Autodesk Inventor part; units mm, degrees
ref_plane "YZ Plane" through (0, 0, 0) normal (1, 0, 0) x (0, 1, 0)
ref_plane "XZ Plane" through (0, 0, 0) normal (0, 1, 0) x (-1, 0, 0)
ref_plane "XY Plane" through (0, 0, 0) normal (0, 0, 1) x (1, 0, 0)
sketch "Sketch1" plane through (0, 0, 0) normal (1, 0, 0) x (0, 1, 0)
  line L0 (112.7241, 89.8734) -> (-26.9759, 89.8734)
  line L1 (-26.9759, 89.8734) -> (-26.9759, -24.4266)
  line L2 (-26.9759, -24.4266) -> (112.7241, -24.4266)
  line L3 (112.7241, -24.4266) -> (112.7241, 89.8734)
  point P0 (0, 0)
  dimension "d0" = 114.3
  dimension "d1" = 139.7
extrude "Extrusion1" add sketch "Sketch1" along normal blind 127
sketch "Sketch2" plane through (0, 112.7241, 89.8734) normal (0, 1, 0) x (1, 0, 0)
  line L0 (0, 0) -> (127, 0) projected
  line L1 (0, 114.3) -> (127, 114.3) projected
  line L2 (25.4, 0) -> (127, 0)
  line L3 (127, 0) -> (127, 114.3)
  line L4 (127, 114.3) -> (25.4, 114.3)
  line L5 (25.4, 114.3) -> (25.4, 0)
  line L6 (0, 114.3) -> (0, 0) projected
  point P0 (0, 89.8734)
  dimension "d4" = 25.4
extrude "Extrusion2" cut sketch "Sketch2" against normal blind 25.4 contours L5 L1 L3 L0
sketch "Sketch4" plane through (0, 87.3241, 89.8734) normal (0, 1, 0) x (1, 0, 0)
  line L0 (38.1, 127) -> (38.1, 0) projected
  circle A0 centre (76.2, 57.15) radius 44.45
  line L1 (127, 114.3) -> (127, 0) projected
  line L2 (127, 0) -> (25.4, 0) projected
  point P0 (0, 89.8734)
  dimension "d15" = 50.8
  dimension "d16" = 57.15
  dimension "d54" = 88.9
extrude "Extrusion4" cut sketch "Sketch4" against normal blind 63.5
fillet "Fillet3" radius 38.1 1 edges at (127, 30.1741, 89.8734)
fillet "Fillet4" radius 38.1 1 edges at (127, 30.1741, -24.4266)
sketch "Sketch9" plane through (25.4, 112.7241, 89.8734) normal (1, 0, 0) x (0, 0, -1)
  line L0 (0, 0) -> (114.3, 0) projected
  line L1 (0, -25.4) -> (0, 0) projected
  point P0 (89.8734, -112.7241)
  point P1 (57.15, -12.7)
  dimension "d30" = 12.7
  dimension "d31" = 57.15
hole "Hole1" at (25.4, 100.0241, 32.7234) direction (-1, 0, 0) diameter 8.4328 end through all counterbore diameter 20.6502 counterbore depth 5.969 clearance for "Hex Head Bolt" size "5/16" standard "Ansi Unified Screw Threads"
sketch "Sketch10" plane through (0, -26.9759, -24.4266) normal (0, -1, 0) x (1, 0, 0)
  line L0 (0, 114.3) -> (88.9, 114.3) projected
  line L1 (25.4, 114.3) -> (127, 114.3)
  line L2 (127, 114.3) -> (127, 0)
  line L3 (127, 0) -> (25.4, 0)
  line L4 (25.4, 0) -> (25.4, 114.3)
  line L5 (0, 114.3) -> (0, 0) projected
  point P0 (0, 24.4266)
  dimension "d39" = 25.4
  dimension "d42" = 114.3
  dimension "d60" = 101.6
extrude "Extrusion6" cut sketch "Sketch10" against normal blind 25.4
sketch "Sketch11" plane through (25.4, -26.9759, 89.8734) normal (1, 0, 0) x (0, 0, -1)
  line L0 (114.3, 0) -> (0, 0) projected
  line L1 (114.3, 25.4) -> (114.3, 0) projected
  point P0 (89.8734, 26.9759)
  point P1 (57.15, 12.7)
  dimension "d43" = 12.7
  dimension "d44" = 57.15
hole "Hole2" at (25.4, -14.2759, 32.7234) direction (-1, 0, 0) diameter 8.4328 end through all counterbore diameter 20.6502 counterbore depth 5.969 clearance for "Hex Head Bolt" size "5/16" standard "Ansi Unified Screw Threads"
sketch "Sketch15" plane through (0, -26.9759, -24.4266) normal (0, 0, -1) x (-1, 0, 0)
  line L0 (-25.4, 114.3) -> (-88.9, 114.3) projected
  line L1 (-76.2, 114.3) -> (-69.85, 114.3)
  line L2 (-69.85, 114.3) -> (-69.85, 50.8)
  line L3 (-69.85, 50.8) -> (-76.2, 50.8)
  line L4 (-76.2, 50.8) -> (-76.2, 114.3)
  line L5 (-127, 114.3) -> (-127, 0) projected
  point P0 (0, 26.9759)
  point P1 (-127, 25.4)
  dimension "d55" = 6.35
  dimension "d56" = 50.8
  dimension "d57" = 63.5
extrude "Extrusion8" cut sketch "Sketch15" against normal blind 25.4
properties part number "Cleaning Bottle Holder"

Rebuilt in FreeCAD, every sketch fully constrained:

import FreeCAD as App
import Part
import Sketcher
from FreeCAD import Vector
Q = App.Units.Quantity


def edges_at(feature, points):
    """Names of the edges that pass closest to the given points."""
    edges = feature.Shape.Edges
    near = lambda p: min(range(len(edges)), key=lambda i: edges[i].distToShape(Part.Vertex(*p))[0])
    return sorted({f"Edge{near(p) + 1}" for p in points})


def add_polygon(sketch, points):
    """Adds a closed chain of lines whose ends are joined by coincident constraints."""
    first, n = sketch.GeometryCount, len(points)
    for a, b in zip(points, points[1:] + points[:1]):
        sketch.addGeometry(Part.LineSegment(App.Vector(*a, 0), App.Vector(*b, 0)), False)
    for i in range(n):
        sketch.addConstraint(Sketcher.Constraint("Coincident", first + i, 2, first + (i + 1) % n, 1))

doc = App.newDocument("Part")
body = doc.addObject("PartDesign::Body", "Body")

sketch1 = doc.addObject("Sketcher::SketchObject", "Sketch")
body.addObject(sketch1)
sketch1.AttachmentSupport = (doc.YZ_Plane, [""])
sketch1.MapMode = "FlatFace"
add_polygon(sketch1, [(113, -24), (113, 90), (-27, 90), (-27, -24)])
sketch1.addConstraint([
    Sketcher.Constraint("Vertical", 0),
    Sketcher.Constraint("Horizontal", 1),
    Sketcher.Constraint("Vertical", 2),
    Sketcher.Constraint("Horizontal", 3),
    Sketcher.Constraint("DistanceX", 1, 2, 1, 1, Q("5.5 in")),
    Sketcher.Constraint("DistanceY", 0, 1, 0, 2, Q("4.5 in")),
    Sketcher.Constraint("DistanceX", -1, 1, 0, 2, Q("112.724 mm")),
    Sketcher.Constraint("DistanceY", -1, 1, 0, 2, Q("89.8734 mm")),
])
pad1 = doc.addObject("PartDesign::Pad", "Pad")
body.addObject(pad1)
pad1.Profile = sketch1
pad1.Length = Q("5 in")

sketch2 = doc.addObject("Sketcher::SketchObject", "Sketch001")
body.addObject(sketch2)
sketch2.AttachmentSupport = (doc.XZ_Plane, [""])
sketch2.MapMode = "FlatFace"
sketch2.AttachmentOffset = App.Placement(Vector(0, 0, -112.7241), App.Rotation())
add_polygon(sketch2, [(25, -24), (25, 90), (127, 90), (127, -24)])
sketch2.addConstraint([
    Sketcher.Constraint("Vertical", 0),
    Sketcher.Constraint("Horizontal", 1),
    Sketcher.Constraint("Vertical", 2),
    Sketcher.Constraint("Horizontal", 3),
    Sketcher.Constraint("DistanceX", -1, 1, 0, 2, Q("1 in")),
    Sketcher.Constraint("DistanceX", 1, 1, 1, 2, Q("4 in")),
    Sketcher.Constraint("DistanceY", 0, 1, 0, 2, Q("4.5 in")),
    Sketcher.Constraint("DistanceY", -1, 1, 0, 2, Q("89.8734 mm")),
])
pocket1 = doc.addObject("PartDesign::Pocket", "Pocket")
body.addObject(pocket1)
pocket1.Profile = sketch2
pocket1.Length = Q("1 in")
pocket1.Reversed = True

sketch3 = doc.addObject("Sketcher::SketchObject", "Sketch002")
body.addObject(sketch3)
sketch3.AttachmentSupport = (doc.XZ_Plane, [""])
sketch3.MapMode = "FlatFace"
sketch3.AttachmentOffset = App.Placement(Vector(0, 0, -87.3241), App.Rotation())
sketch3.addGeometry(Part.Circle(Vector(76, 33, 0), Vector(0, 0, 1), 44), False)
sketch3.addConstraint([
    Sketcher.Constraint("Diameter", 0, Q("3.5 in")),
    Sketcher.Constraint("DistanceX", -1, 1, 0, 3, Q("3 in")),
    Sketcher.Constraint("DistanceY", -1, 1, 0, 3, Q("32.7234 mm")),
])
pocket2 = doc.addObject("PartDesign::Pocket", "Pocket001")
body.addObject(pocket2)
pocket2.Profile = sketch3
pocket2.Length = Q("2.5 in")
pocket2.Reversed = True
doc.recompute()

fillet = doc.addObject("PartDesign::Fillet", "Fillet")
body.addObject(fillet)
fillet.Base = (pocket2, edges_at(pocket2, [(127, 30.174, 89.873)]))
fillet.Radius = Q("1.5 in")
doc.recompute()

fillet2 = doc.addObject("PartDesign::Fillet", "Fillet001")
body.addObject(fillet2)
fillet2.Base = (fillet, edges_at(fillet, [(127, 30.174, -24.427)]))
fillet2.Radius = Q("1.5 in")

sketch4 = doc.addObject("Sketcher::SketchObject", "Sketch003")
body.addObject(sketch4)
sketch4.AttachmentSupport = (doc.YZ_Plane, [""])
sketch4.MapMode = "FlatFace"
sketch4.AttachmentOffset = App.Placement(Vector(0, 0, 1 * 25.4), App.Rotation())
sketch4.addGeometry(Part.Circle(Vector(100, 32.7, 0), Vector(0, 0, 1), 4.2), False)
sketch4.addConstraint([
    Sketcher.Constraint("Diameter", 0, Q("0.332 in")),
    Sketcher.Constraint("DistanceX", -1, 1, 0, 3, Q("100.024 mm")),
    Sketcher.Constraint("DistanceY", -1, 1, 0, 3, Q("32.7234 mm")),
])
doc.recompute()
hole = doc.addObject("PartDesign::Hole", "Hole")
body.addObject(hole)
hole.Profile = sketch4
hole.ThreadType = "None"
hole.Diameter = Q("0.332 in")
hole.DepthType = "ThroughAll"
hole.HoleCutType = "Counterbore"
hole.HoleCutDiameter = Q("0.813 in")
hole.HoleCutDepth = Q("0.235 in")

sketch5 = doc.addObject("Sketcher::SketchObject", "Sketch004")
body.addObject(sketch5)
sketch5.AttachmentSupport = (doc.XZ_Plane, [""])
sketch5.MapMode = "FlatFace"
sketch5.AttachmentOffset = App.Placement(Vector(0, 0, 26.9759), App.Rotation())
add_polygon(sketch5, [(127, 90), (25, 90), (25, -24), (127, -24)])
sketch5.addConstraint([
    Sketcher.Constraint("Horizontal", 0),
    Sketcher.Constraint("Vertical", 1),
    Sketcher.Constraint("Horizontal", 2),
    Sketcher.Constraint("Vertical", 3),
    Sketcher.Constraint("DistanceX", 0, 2, 0, 1, Q("4 in")),
    Sketcher.Constraint("DistanceY", 1, 2, 1, 1, Q("4.5 in")),
    Sketcher.Constraint("DistanceX", -1, 1, 0, 2, Q("1 in")),
    Sketcher.Constraint("DistanceY", -1, 1, 0, 2, Q("89.8734 mm")),
])
pocket3 = doc.addObject("PartDesign::Pocket", "Pocket002")
body.addObject(pocket3)
pocket3.Profile = sketch5
pocket3.Length = Q("1 in")

sketch6 = doc.addObject("Sketcher::SketchObject", "Sketch005")
body.addObject(sketch6)
sketch6.AttachmentSupport = (doc.YZ_Plane, [""])
sketch6.MapMode = "FlatFace"
sketch6.AttachmentOffset = App.Placement(Vector(0, 0, 1 * 25.4), App.Rotation())
sketch6.addGeometry(Part.Circle(Vector(-14.3, 32.7, 0), Vector(0, 0, 1), 4.2), False)
sketch6.addConstraint([
    Sketcher.Constraint("Diameter", 0, Q("0.332 in")),
    Sketcher.Constraint("DistanceX", 0, 3, -1, 1, Q("14.276 mm")),
    Sketcher.Constraint("DistanceY", -1, 1, 0, 3, Q("32.7234 mm")),
])
doc.recompute()
hole2 = doc.addObject("PartDesign::Hole", "Hole001")
body.addObject(hole2)
hole2.Profile = sketch6
hole2.ThreadType = "None"
hole2.Diameter = Q("0.332 in")
hole2.DepthType = "ThroughAll"
hole2.HoleCutType = "Counterbore"
hole2.HoleCutDiameter = Q("0.813 in")
hole2.HoleCutDepth = Q("0.235 in")

sketch7 = doc.addObject("Sketcher::SketchObject", "Sketch006")
body.addObject(sketch7)
sketch7.AttachmentSupport = (doc.XY_Plane, [""])
sketch7.MapMode = "FlatFace"
sketch7.AttachmentOffset = App.Placement(Vector(0, 0, -24.4266), App.Rotation())
add_polygon(sketch7, [(70, 24), (70, 87), (76, 87), (76, 24)])
sketch7.addConstraint([
    Sketcher.Constraint("Vertical", 0),
    Sketcher.Constraint("Horizontal", 1),
    Sketcher.Constraint("Vertical", 2),
    Sketcher.Constraint("Horizontal", 3),
    Sketcher.Constraint("DistanceY", 0, 1, 0, 2, Q("2.5 in")),
    Sketcher.Constraint("DistanceX", 1, 1, 1, 2, Q("0.25 in")),
    Sketcher.Constraint("DistanceX", -1, 1, 1, 2, Q("3 in")),
    Sketcher.Constraint("DistanceY", -1, 1, 0, 2, Q("87.324 mm")),
])
pocket4 = doc.addObject("PartDesign::Pocket", "Pocket003")
body.addObject(pocket4)
pocket4.Profile = sketch7
pocket4.Length = Q("1 in")
pocket4.Reversed = True

doc.recompute()
